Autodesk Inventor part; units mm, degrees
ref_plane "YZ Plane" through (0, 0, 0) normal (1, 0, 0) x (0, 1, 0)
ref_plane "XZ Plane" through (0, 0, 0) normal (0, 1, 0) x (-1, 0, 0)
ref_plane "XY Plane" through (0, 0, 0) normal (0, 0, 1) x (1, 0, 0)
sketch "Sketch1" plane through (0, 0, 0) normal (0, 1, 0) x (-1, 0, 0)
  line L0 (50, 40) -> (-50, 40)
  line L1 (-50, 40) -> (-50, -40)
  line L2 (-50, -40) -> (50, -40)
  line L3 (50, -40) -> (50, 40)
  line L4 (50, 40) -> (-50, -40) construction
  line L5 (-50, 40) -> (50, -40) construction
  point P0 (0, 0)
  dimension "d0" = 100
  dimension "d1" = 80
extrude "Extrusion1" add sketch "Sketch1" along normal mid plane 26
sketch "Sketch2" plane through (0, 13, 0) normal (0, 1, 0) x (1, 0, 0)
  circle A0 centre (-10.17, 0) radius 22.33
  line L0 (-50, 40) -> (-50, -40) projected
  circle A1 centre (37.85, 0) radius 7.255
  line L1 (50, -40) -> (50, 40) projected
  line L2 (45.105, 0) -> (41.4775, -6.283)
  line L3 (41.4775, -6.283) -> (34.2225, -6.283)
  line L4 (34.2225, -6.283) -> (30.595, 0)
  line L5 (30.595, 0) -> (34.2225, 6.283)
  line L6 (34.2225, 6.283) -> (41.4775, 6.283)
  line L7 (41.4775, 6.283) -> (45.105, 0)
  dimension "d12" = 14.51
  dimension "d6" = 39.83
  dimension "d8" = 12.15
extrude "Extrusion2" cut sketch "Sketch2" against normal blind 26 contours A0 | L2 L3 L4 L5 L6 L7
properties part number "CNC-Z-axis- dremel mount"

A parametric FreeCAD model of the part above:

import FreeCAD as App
import Part
import Sketcher
Q = App.Units.Quantity


def add_polygon(sketch, points):
    """Adds a closed chain of lines whose ends are joined by coincident constraints."""
    first, n = sketch.GeometryCount, len(points)
    for a, b in zip(points, points[1:] + points[:1]):
        sketch.addGeometry(Part.LineSegment(App.Vector(*a, 0), App.Vector(*b, 0)), False)
    for i in range(n):
        sketch.addConstraint(Sketcher.Constraint("Coincident", first + i, 2, first + (i + 1) % n, 1))

doc = App.newDocument("Part")
body = doc.addObject("PartDesign::Body", "Body")

sketch1 = body.newObject("Sketcher::SketchObject", "Sketch")
sketch1.AttachmentSupport = (doc.getObject("XZ_Plane"), [""])
sketch1.MapMode = "FlatFace"
add_polygon(sketch1, [(-50, -40), (-50, 40), (50, 40), (50, -40)])
sketch1.addConstraint(Sketcher.Constraint("Vertical", 0))
sketch1.addConstraint(Sketcher.Constraint("Horizontal", 1))
sketch1.addConstraint(Sketcher.Constraint("Vertical", 2))
sketch1.addConstraint(Sketcher.Constraint("Horizontal", 3))
sketch1.addConstraint(Sketcher.Constraint("Symmetric", 0, 2, 2, 2, -1, 1))
sketch1.addConstraint(Sketcher.Constraint("DistanceX", 1, 1, 1, 2, Q("100 mm")))
sketch1.addConstraint(Sketcher.Constraint("DistanceY", 0, 1, 0, 2, Q("80 mm")))
pad1 = body.newObject("PartDesign::Pad", "Pad")
pad1.Profile = sketch1
pad1.Length = 26
pad1.Midplane = True

sketch2 = body.newObject("Sketcher::SketchObject", "Sketch001")
sketch2.AttachmentSupport = (doc.getObject("XZ_Plane"), [""])
sketch2.MapMode = "FlatFace"
sketch2.AttachmentOffset = App.Placement(App.Vector(0, 0, -13), App.Rotation())
sketch2.addGeometry(Part.Circle(App.Vector(-10, 0, 0), App.Vector(0, 0, 1), 22), False)
add_polygon(sketch2, [(41, 6), (45, 0), (41, -6), (34, -6), (31, 0), (34, 6)])
sketch2.addConstraint(Sketcher.Constraint("Horizontal", 3))
sketch2.addConstraint(Sketcher.Constraint("Horizontal", 6))
sketch2.addConstraint(Sketcher.Constraint("Symmetric", 3, 2, 5, 2, -1))
sketch2.addConstraint(Sketcher.Constraint("PointOnObject", 0, 3, -1))
sketch2.addConstraint(Sketcher.Constraint("PointOnObject", 1, 2, -1))
sketch2.addConstraint(Sketcher.Constraint("PointOnObject", 4, 2, -1))
sketch2.addConstraint(Sketcher.Constraint("Parallel", 1, 4))
sketch2.addConstraint(Sketcher.Constraint("Parallel", 2, 5))
sketch2.addConstraint(Sketcher.Constraint("Diameter", 0, Q("44.66 mm")))
sketch2.addConstraint(Sketcher.Constraint("Angle", 1, Q("-60 deg")))
sketch2.addConstraint(Sketcher.Constraint("DistanceX", 4, 2, 1, 2, Q("14.51 mm")))
sketch2.addConstraint(Sketcher.Constraint("DistanceX", 3, 2, 3, 1, Q("7.255 mm")))
sketch2.addConstraint(Sketcher.Constraint("DistanceX", 0, 3, -1, 1, Q("10.17 mm")))
sketch2.addConstraint(Sketcher.Constraint("DistanceX", -1, 1, 1, 2, Q("45.105 mm")))
pocket1 = body.newObject("PartDesign::Pocket", "Pocket")
pocket1.Profile = sketch2
pocket1.Length = 26
pocket1.Reversed = True

doc.recompute()
